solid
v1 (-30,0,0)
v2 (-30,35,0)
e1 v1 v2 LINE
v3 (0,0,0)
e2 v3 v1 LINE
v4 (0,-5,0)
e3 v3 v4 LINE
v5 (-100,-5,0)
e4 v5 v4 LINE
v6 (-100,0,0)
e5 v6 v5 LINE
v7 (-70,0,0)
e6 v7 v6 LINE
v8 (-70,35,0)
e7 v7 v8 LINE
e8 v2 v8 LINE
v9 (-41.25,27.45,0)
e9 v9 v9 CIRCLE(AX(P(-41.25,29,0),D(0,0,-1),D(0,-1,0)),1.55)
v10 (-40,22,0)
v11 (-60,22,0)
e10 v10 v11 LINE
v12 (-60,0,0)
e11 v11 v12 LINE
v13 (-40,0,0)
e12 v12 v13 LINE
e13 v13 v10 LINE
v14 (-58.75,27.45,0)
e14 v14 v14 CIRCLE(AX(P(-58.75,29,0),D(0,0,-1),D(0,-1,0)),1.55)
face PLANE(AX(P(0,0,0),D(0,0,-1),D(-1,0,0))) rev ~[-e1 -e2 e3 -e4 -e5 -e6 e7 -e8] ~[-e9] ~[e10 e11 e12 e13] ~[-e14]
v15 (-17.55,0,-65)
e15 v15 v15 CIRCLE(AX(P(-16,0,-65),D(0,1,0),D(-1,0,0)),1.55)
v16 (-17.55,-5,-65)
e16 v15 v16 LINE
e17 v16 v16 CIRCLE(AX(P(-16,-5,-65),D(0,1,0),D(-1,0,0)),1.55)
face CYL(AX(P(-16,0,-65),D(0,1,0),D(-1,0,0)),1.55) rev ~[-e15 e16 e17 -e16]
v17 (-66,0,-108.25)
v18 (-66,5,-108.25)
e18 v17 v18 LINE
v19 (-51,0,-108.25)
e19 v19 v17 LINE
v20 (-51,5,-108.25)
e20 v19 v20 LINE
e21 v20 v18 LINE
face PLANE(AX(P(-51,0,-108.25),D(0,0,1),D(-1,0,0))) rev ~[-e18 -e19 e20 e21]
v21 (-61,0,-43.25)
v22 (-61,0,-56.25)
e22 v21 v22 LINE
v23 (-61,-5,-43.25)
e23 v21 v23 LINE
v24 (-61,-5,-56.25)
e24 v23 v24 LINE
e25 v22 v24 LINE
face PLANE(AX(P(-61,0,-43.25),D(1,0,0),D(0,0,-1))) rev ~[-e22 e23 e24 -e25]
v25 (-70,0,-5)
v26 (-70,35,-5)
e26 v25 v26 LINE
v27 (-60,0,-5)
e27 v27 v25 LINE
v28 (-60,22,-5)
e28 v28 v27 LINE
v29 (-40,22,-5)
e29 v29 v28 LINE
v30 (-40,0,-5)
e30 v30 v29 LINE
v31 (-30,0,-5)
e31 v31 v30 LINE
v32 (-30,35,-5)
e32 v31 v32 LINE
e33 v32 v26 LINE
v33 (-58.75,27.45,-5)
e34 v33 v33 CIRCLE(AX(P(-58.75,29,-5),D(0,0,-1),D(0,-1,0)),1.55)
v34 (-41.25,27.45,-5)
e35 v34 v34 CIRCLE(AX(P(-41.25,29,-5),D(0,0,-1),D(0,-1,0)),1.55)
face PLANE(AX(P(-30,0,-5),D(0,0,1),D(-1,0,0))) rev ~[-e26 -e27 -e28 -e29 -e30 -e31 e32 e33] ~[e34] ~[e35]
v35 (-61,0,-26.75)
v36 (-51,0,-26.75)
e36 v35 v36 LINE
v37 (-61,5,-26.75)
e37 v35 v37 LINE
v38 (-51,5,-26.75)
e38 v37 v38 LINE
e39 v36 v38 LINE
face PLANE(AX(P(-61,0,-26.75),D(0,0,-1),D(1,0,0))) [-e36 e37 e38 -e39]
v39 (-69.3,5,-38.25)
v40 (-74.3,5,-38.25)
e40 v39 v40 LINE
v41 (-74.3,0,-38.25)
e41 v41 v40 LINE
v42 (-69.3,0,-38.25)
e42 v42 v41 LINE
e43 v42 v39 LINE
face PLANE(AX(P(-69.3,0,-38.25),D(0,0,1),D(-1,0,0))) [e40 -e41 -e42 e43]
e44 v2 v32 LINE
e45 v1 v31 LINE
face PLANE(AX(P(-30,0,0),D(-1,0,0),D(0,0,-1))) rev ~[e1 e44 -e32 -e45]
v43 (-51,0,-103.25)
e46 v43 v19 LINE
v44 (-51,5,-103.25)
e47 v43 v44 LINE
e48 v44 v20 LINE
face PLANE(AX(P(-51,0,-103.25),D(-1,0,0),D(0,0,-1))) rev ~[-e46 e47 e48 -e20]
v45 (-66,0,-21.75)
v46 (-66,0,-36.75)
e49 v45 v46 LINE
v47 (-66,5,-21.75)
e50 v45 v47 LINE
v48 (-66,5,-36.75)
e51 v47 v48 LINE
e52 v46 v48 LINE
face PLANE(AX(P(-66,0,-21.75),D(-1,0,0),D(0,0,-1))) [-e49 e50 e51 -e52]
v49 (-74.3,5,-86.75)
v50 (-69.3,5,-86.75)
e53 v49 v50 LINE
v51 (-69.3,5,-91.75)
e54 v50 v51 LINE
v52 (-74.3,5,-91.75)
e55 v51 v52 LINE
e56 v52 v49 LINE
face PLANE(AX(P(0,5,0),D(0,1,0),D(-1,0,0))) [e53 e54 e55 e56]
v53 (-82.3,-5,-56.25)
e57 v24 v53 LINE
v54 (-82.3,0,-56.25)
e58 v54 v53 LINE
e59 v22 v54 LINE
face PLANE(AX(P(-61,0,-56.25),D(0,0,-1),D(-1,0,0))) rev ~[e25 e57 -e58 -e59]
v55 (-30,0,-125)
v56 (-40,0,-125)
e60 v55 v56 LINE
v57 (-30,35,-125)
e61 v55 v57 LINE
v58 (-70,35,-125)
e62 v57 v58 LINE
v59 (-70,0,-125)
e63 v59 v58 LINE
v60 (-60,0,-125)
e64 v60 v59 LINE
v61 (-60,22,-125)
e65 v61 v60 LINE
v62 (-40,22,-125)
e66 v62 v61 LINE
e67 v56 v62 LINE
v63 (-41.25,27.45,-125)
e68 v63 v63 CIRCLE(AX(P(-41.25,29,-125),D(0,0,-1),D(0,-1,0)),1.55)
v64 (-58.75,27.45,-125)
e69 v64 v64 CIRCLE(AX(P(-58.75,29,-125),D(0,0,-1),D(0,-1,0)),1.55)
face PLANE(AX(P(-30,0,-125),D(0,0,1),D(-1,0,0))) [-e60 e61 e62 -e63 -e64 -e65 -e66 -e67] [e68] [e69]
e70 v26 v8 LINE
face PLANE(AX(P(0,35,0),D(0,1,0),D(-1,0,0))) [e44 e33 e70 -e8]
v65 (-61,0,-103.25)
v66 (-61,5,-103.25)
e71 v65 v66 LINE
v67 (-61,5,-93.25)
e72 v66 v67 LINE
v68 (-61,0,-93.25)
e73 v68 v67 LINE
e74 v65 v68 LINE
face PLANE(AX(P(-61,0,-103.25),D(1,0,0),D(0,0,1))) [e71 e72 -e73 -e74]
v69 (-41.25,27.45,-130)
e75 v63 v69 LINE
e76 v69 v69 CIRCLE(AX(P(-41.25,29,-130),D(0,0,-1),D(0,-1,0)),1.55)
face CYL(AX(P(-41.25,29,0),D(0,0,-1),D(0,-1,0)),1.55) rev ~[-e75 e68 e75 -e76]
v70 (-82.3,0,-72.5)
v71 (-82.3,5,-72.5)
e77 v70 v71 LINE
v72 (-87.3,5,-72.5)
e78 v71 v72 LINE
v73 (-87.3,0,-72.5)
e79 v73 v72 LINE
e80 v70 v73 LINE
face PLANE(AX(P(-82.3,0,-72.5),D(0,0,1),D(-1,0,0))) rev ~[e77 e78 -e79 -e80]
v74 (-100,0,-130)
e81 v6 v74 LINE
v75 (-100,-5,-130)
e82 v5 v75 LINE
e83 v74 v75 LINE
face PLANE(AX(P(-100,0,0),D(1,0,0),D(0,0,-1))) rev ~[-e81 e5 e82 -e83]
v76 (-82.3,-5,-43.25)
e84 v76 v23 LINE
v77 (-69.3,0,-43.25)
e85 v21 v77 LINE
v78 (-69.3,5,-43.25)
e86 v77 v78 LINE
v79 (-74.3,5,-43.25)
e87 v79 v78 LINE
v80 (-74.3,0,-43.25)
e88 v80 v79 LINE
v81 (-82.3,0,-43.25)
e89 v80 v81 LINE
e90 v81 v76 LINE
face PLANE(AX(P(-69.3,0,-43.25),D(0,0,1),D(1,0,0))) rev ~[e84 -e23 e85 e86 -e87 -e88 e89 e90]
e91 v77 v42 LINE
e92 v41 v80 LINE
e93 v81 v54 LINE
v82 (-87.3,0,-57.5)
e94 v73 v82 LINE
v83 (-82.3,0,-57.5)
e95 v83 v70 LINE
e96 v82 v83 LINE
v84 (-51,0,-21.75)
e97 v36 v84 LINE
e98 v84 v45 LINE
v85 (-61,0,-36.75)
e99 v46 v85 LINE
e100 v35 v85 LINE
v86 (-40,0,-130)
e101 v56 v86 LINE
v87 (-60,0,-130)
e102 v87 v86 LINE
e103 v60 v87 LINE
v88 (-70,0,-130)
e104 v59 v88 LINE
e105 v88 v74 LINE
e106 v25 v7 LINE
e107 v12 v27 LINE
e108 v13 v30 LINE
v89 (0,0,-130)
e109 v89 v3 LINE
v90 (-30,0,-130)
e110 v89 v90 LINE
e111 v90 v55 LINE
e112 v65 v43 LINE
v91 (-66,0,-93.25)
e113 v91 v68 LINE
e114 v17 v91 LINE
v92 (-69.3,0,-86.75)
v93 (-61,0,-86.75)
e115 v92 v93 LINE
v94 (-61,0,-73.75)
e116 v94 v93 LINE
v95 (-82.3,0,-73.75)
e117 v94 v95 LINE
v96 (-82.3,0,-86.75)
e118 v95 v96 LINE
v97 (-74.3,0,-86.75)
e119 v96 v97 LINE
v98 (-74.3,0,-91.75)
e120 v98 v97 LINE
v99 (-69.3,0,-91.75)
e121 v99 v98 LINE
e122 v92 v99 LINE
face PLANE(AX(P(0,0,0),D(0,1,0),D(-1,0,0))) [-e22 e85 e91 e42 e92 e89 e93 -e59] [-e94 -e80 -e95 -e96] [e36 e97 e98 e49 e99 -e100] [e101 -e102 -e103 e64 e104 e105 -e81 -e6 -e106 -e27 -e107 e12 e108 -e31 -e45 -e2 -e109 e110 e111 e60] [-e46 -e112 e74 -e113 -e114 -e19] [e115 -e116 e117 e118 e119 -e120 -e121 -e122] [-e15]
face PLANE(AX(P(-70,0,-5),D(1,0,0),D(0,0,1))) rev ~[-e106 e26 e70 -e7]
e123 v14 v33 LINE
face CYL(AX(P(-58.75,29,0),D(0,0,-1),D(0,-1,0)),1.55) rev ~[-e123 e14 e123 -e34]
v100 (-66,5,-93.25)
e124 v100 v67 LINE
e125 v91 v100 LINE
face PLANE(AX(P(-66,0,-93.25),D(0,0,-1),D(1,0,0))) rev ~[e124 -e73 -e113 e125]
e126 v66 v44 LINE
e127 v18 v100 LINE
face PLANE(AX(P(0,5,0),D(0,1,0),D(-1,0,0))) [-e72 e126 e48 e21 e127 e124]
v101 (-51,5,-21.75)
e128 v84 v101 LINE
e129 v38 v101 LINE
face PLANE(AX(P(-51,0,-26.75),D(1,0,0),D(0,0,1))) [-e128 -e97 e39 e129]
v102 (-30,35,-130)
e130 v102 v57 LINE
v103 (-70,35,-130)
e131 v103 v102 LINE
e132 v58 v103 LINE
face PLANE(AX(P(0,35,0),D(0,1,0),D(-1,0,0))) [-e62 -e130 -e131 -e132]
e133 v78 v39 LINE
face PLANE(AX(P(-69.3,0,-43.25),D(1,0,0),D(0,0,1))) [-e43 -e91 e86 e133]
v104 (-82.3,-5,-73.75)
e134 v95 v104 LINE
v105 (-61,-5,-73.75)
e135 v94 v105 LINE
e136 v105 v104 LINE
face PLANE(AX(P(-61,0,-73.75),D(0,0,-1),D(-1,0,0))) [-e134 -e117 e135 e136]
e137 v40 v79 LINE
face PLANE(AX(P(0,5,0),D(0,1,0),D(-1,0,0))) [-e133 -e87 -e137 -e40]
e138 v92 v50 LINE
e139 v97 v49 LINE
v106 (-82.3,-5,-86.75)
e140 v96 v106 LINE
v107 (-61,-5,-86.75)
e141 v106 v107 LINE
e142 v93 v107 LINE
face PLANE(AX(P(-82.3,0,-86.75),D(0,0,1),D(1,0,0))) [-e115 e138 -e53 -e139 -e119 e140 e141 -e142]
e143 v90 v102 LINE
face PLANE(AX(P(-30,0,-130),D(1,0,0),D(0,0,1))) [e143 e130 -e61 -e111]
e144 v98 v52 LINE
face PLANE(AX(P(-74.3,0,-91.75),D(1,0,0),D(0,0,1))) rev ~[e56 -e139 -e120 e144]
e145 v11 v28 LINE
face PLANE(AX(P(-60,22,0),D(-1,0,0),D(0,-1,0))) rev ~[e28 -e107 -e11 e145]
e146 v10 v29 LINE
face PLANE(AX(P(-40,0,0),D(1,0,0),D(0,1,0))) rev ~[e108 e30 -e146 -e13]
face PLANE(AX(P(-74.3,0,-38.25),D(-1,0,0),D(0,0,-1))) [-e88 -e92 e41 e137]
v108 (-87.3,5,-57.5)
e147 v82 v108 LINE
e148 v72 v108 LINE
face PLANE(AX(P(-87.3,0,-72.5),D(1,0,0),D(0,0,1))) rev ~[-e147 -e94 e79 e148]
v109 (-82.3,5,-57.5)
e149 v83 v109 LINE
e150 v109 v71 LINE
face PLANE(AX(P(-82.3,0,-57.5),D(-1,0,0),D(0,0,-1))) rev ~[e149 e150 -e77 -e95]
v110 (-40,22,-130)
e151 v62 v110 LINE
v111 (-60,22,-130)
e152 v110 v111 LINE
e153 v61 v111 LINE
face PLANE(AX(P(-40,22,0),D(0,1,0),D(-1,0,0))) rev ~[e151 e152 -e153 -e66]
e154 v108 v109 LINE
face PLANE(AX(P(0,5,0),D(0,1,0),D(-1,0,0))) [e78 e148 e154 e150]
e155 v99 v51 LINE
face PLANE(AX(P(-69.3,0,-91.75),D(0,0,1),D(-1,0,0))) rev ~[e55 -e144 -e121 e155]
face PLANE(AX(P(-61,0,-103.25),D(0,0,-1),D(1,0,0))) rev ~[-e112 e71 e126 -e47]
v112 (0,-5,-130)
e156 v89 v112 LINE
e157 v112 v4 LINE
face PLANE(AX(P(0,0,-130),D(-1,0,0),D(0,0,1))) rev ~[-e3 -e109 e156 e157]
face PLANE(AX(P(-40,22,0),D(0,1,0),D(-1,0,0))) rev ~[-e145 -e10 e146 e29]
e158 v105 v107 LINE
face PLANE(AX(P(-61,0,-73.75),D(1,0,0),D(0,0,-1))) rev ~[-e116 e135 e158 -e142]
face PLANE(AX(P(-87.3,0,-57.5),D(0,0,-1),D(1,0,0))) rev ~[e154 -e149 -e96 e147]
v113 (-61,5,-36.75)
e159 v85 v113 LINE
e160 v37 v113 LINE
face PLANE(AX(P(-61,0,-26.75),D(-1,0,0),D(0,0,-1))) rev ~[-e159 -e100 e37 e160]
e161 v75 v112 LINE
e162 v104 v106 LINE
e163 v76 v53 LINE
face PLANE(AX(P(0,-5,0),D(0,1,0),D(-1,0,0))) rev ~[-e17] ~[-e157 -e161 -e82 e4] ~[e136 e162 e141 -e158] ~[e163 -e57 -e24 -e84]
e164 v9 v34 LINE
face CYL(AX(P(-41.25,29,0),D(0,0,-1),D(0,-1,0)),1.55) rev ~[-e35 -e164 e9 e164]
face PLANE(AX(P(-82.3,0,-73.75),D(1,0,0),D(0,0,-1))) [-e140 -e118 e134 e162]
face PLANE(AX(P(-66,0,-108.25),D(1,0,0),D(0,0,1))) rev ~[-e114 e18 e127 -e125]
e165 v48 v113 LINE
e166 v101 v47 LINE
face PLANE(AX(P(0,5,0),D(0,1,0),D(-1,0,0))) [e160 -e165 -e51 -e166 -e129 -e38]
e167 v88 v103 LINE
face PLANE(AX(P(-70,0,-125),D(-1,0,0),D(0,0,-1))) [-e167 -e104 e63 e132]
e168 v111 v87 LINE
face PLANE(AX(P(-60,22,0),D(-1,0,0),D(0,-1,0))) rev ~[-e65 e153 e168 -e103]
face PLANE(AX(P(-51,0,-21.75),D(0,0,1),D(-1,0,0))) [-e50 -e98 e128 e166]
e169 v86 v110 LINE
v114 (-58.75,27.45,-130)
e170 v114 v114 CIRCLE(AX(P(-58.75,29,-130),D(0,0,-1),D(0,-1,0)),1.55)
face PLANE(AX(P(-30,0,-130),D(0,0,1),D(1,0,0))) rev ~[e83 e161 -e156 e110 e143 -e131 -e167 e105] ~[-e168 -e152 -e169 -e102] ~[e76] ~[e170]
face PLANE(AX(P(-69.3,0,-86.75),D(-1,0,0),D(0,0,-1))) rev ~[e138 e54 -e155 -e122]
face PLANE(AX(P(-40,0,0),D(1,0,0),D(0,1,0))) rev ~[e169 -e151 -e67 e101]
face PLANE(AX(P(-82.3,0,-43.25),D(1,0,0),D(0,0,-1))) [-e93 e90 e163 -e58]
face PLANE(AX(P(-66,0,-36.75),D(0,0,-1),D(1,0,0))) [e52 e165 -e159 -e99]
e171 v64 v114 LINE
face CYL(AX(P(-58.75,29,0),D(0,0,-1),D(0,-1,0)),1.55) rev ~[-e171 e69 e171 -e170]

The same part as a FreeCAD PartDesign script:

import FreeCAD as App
import Part
import Sketcher
from FreeCAD import Vector


def add_polygon(sketch, points):
    """Adds a closed chain of lines whose ends are joined by coincident constraints."""
    first, n = sketch.GeometryCount, len(points)
    for a, b in zip(points, points[1:] + points[:1]):
        sketch.addGeometry(Part.LineSegment(App.Vector(*a, 0), App.Vector(*b, 0)), False)
    for i in range(n):
        sketch.addConstraint(Sketcher.Constraint("Coincident", first + i, 2, first + (i + 1) % n, 1))

doc = App.newDocument("Part")
params = doc.addObject("Spreadsheet::Sheet", "Params")
for row, (alias, value) in enumerate([
    ("sketch1_width", "100 mm"),
    ("sketch1_height", "130 mm"),
    ("pad1_length", "5 mm"),
    ("sketch2_width", "40 mm"),
    ("sketch2_height", "5 mm"),
    ("pad2_length", "35 mm"),
    ("sketch3_width", "20 mm"),
    ("sketch3_height", "22 mm"),
    ("sketch4_diameter", "3.1 mm"),
    ("hole_diameter", "3.1 mm"),
    ("sketch5_diameter", "3.1 mm"),
    ("sketch5_height", "13 mm"),
    ("sketch5_width", "21.3 mm"),
    ("sketch6_width", "10 mm"),
    ("sketch6_width2", "5 mm"),
    ("pad3_length", "5 mm"),
], start=1):
    params.set(f"A{row}", alias)
    params.set(f"B{row}", "=" + value)
    params.setAlias(f"B{row}", alias)

body = doc.addObject("PartDesign::Body", "Body")

sketch1 = body.newObject("Sketcher::SketchObject", "Sketch")
sketch1.AttachmentSupport = (doc.getObject("XZ_Plane"), [""])
sketch1.MapMode = "FlatFace"
add_polygon(sketch1, [(0, 0), (0, -130), (-100, -130), (-100, 0)])
sketch1.addConstraint([
    Sketcher.Constraint("Vertical", 0),
    Sketcher.Constraint("Horizontal", 1),
    Sketcher.Constraint("Vertical", 2),
    Sketcher.Constraint("Horizontal", 3),
    Sketcher.Constraint("Coincident", 3, 2, -1, 1),
    Sketcher.Constraint("DistanceX", 1, 2, 1, 1, 100.0),
    Sketcher.Constraint("DistanceY", 0, 2, 0, 1, 130.0),
])
sketch1.setExpression("Constraints[9]", "Params.sketch1_width")
sketch1.setExpression("Constraints[10]", "Params.sketch1_height")
pad1 = body.newObject("PartDesign::Pad", "Pad")
pad1.Profile = sketch1
pad1.setExpression("Length", "Params.pad1_length")

sketch2 = body.newObject("Sketcher::SketchObject", "Sketch001")
sketch2.AttachmentSupport = (doc.getObject("XZ_Plane"), [""])
sketch2.MapMode = "FlatFace"
add_polygon(sketch2, [(-70, 0), (-30, 0), (-30, -5), (-70, -5)])
add_polygon(sketch2, [(-30, -125), (-30, -130), (-70, -130), (-70, -125)])
sketch2.addConstraint([
    Sketcher.Constraint("Horizontal", 0),
    Sketcher.Constraint("Vertical", 1),
    Sketcher.Constraint("Horizontal", 2),
    Sketcher.Constraint("Vertical", 3),
    Sketcher.Constraint("Vertical", 4),
    Sketcher.Constraint("Horizontal", 5),
    Sketcher.Constraint("Vertical", 6),
    Sketcher.Constraint("Horizontal", 7),
    Sketcher.Constraint("PointOnObject", 0, 2, -1),
    Sketcher.Constraint("Vertical", 1, 2, 4, 2),
    Sketcher.Constraint("Vertical", 3, 2, 5, 2),
    Sketcher.Constraint("Equal", 3, 4),
    Sketcher.Constraint("DistanceX", 0, 1, 0, 2, 40.0),
    Sketcher.Constraint("DistanceY", 1, 2, 1, 1, 5.0),
    Sketcher.Constraint("DistanceY", 4, 2, -1, 1, 130.0),
    Sketcher.Constraint("DistanceX", 0, 2, -1, 1, 30.0),
])
sketch2.setExpression("Constraints[20]", "Params.sketch2_width")
sketch2.setExpression("Constraints[21]", "Params.sketch2_height")
pad2 = body.newObject("PartDesign::Pad", "Pad001")
pad2.Profile = sketch2
pad2.setExpression("Length", "Params.pad2_length")
pad2.Reversed = True

sketch3 = body.newObject("Sketcher::SketchObject", "Sketch002")
sketch3.AttachmentSupport = (doc.getObject("XY_Plane"), [""])
sketch3.MapMode = "FlatFace"
add_polygon(sketch3, [(-60, 22), (-60, 0), (-40, 0), (-40, 22)])
sketch3.addConstraint([
    Sketcher.Constraint("Vertical", 0),
    Sketcher.Constraint("Horizontal", 1),
    Sketcher.Constraint("Vertical", 2),
    Sketcher.Constraint("Horizontal", 3),
    Sketcher.Constraint("PointOnObject", 0, 2, -1),
    Sketcher.Constraint("DistanceX", 1, 1, 1, 2, 20.0),
    Sketcher.Constraint("DistanceY", 0, 2, 0, 1, 22.0),
    Sketcher.Constraint("DistanceX", 0, 2, -1, 1, 60.0),
])
sketch3.setExpression("Constraints[9]", "Params.sketch3_width")
sketch3.setExpression("Constraints[10]", "Params.sketch3_height")
pocket1 = body.newObject("PartDesign::Pocket", "Pocket")
pocket1.Profile = sketch3
pocket1.Type = "ThroughAll"

sketch4 = body.newObject("Sketcher::SketchObject", "Sketch003")
sketch4.AttachmentSupport = (doc.getObject("XY_Plane"), [""])
sketch4.MapMode = "FlatFace"
sketch4.addGeometry([
    Part.Circle(Vector(-58.8, 29, 0), Vector(0, 0, 1), 1.6),
    Part.Circle(Vector(-41.2, 29, 0), Vector(0, 0, 1), 1.6),
], False)
sketch4.addConstraint([
    Sketcher.Constraint("Equal", 0, 1),
    Sketcher.Constraint("Horizontal", 0, 3, 1, 3),
    Sketcher.Constraint("Diameter", 0, 3.1),
    Sketcher.Constraint("DistanceY", -1, 1, 0, 3, 29.0),
    Sketcher.Constraint("DistanceX", 0, 3, 1, 3, 17.5),
    Sketcher.Constraint("DistanceX", 0, 3, -1, 1, 58.75),
])
sketch4.setExpression("Constraints[2]", "Params.sketch4_diameter")
doc.recompute()
hole = body.newObject("PartDesign::Hole", "Hole")
hole.Profile = sketch4
hole.ThreadType = "None"
hole.setExpression("Diameter", "Params.hole_diameter")
hole.DepthType = "ThroughAll"

sketch5 = body.newObject("Sketcher::SketchObject", "Sketch004")
sketch5.AttachmentSupport = (doc.getObject("XZ_Plane"), [""])
sketch5.MapMode = "FlatFace"
add_polygon(sketch5, [(-82.3, -56.2), (-82.3, -43.2), (-61, -43.2), (-61, -56.2)])
add_polygon(sketch5, [(-61, -86.8), (-82.3, -86.8), (-82.3, -73.8), (-61, -73.8)])
sketch5.addGeometry(Part.Circle(Vector(-16, -65, 0), Vector(0, 0, 1), 1.6), False)
sketch5.addConstraint([
    Sketcher.Constraint("Vertical", 0),
    Sketcher.Constraint("Horizontal", 1),
    Sketcher.Constraint("Vertical", 2),
    Sketcher.Constraint("Horizontal", 3),
    Sketcher.Constraint("Horizontal", 4),
    Sketcher.Constraint("Vertical", 5),
    Sketcher.Constraint("Horizontal", 6),
    Sketcher.Constraint("Vertical", 7),
    Sketcher.Constraint("Vertical", 3, 2, 4, 2),
    Sketcher.Constraint("Vertical", 2, 2, 6, 2),
    Sketcher.Constraint("Equal", 2, 5),
    Sketcher.Constraint("Diameter", 8, 3.1),
    Sketcher.Constraint("DistanceY", 0, 1, 0, 2, 13.0),
    Sketcher.Constraint("DistanceX", 1, 1, 1, 2, 21.3),
    Sketcher.Constraint("DistanceY", 4, 2, 0, 2, 43.5),
    Sketcher.Constraint("DistanceX", 8, 3, -1, 1, 16.0),
    Sketcher.Constraint("DistanceY", 8, 3, -1, 1, 65.0),
    Sketcher.Constraint("DistanceX", 1, 2, -1, 1, 61.0),
    Sketcher.Constraint("DistanceY", 0, 2, -1, 1, 43.25),
])
sketch5.setExpression("Constraints[19]", "Params.sketch5_diameter")
sketch5.setExpression("Constraints[20]", "Params.sketch5_height")
sketch5.setExpression("Constraints[21]", "Params.sketch5_width")
pocket2 = body.newObject("PartDesign::Pocket", "Pocket001")
pocket2.Profile = sketch5
pocket2.Type = "ThroughAll"
pocket2.Reversed = True

sketch6 = body.newObject("Sketcher::SketchObject", "Sketch005")
sketch6.AttachmentSupport = (doc.getObject("XZ_Plane"), [""])
sketch6.MapMode = "FlatFace"
add_polygon(sketch6, [(-51, -27), (-61, -27), (-61, -37), (-66, -37), (-66, -22), (-51, -22)])
add_polygon(sketch6, [(-61, -103), (-51, -103), (-51, -108), (-66, -108), (-66, -93), (-61, -93)])
add_polygon(sketch6, [(-69, -43), (-74, -43), (-74, -38), (-69, -38)])
add_polygon(sketch6, [(-74, -92), (-74, -87), (-69, -87), (-69, -92)])
add_polygon(sketch6, [(-82, -58), (-82, -72), (-87, -72), (-87, -58)])
sketch6.addConstraint([
    Sketcher.Constraint("Horizontal", 0),
    Sketcher.Constraint("Vertical", 1),
    Sketcher.Constraint("Horizontal", 2),
    Sketcher.Constraint("Vertical", 3),
    Sketcher.Constraint("Horizontal", 4),
    Sketcher.Constraint("Vertical", 5),
    Sketcher.Constraint("Horizontal", 6),
    Sketcher.Constraint("Vertical", 7),
    Sketcher.Constraint("Horizontal", 8),
    Sketcher.Constraint("Vertical", 9),
    Sketcher.Constraint("Horizontal", 10),
    Sketcher.Constraint("Vertical", 11),
    Sketcher.Constraint("Horizontal", 12),
    Sketcher.Constraint("Vertical", 13),
    Sketcher.Constraint("Horizontal", 14),
    Sketcher.Constraint("Vertical", 15),
    Sketcher.Constraint("Vertical", 16),
    Sketcher.Constraint("Horizontal", 17),
    Sketcher.Constraint("Vertical", 18),
    Sketcher.Constraint("Horizontal", 19),
    Sketcher.Constraint("Vertical", 20),
    Sketcher.Constraint("Horizontal", 21),
    Sketcher.Constraint("Vertical", 22),
    Sketcher.Constraint("Horizontal", 23),
    Sketcher.Constraint("Vertical", 5, 2, 6, 2),
    Sketcher.Constraint("Vertical", 3, 2, 8, 2),
    Sketcher.Constraint("Vertical", 1, 2, 10, 2),
    Sketcher.Constraint("Vertical", 13, 2, 16, 2),
    Sketcher.Constraint("Vertical", 15, 2, 17, 2),
    Sketcher.Constraint("Equal", 10, 12),
    Sketcher.Constraint("Equal", 19, 21),
    Sketcher.Constraint("Equal", 6, 1),
    Sketcher.Constraint("Equal", 8, 3),
    Sketcher.Constraint("Equal", 5, 7),
    Sketcher.Constraint("Equal", 3, 9),
    Sketcher.Constraint("Equal", 7, 13),
    Sketcher.Constraint("Equal", 15, 16),
    Sketcher.Constraint("Equal", 9, 20),
    Sketcher.Constraint("DistanceX", 0, 2, 0, 1, 10.0),
    Sketcher.Constraint("DistanceX", 2, 2, 2, 1, 5.0),
    Sketcher.Constraint("DistanceX", 20, 2, 16, 2, 8.0),
    Sketcher.Constraint("DistanceY", 6, 2, 5, 2, 76.5),
    Sketcher.Constraint("DistanceY", 12, 2, 2, 2, 6.5),
    Sketcher.Constraint("DistanceY", 9, 2, 16, 2, 6.5),
    Sketcher.Constraint("DistanceX", 0, 2, -1, 1, 61.0),
    Sketcher.Constraint("DistanceX", 12, 2, -1, 1, 74.3),
    Sketcher.Constraint("DistanceY", 20, 2, -1, 1, 72.5),
    Sketcher.Constraint("DistanceY", 0, 2, -1, 1, 26.75),
])
sketch6.setExpression("Constraints[62]", "Params.sketch6_width")
sketch6.setExpression("Constraints[63]", "Params.sketch6_width2")
pad3 = body.newObject("PartDesign::Pad", "Pad002")
pad3.Profile = sketch6
pad3.setExpression("Length", "Params.pad3_length")
pad3.Reversed = True

doc.recompute()
